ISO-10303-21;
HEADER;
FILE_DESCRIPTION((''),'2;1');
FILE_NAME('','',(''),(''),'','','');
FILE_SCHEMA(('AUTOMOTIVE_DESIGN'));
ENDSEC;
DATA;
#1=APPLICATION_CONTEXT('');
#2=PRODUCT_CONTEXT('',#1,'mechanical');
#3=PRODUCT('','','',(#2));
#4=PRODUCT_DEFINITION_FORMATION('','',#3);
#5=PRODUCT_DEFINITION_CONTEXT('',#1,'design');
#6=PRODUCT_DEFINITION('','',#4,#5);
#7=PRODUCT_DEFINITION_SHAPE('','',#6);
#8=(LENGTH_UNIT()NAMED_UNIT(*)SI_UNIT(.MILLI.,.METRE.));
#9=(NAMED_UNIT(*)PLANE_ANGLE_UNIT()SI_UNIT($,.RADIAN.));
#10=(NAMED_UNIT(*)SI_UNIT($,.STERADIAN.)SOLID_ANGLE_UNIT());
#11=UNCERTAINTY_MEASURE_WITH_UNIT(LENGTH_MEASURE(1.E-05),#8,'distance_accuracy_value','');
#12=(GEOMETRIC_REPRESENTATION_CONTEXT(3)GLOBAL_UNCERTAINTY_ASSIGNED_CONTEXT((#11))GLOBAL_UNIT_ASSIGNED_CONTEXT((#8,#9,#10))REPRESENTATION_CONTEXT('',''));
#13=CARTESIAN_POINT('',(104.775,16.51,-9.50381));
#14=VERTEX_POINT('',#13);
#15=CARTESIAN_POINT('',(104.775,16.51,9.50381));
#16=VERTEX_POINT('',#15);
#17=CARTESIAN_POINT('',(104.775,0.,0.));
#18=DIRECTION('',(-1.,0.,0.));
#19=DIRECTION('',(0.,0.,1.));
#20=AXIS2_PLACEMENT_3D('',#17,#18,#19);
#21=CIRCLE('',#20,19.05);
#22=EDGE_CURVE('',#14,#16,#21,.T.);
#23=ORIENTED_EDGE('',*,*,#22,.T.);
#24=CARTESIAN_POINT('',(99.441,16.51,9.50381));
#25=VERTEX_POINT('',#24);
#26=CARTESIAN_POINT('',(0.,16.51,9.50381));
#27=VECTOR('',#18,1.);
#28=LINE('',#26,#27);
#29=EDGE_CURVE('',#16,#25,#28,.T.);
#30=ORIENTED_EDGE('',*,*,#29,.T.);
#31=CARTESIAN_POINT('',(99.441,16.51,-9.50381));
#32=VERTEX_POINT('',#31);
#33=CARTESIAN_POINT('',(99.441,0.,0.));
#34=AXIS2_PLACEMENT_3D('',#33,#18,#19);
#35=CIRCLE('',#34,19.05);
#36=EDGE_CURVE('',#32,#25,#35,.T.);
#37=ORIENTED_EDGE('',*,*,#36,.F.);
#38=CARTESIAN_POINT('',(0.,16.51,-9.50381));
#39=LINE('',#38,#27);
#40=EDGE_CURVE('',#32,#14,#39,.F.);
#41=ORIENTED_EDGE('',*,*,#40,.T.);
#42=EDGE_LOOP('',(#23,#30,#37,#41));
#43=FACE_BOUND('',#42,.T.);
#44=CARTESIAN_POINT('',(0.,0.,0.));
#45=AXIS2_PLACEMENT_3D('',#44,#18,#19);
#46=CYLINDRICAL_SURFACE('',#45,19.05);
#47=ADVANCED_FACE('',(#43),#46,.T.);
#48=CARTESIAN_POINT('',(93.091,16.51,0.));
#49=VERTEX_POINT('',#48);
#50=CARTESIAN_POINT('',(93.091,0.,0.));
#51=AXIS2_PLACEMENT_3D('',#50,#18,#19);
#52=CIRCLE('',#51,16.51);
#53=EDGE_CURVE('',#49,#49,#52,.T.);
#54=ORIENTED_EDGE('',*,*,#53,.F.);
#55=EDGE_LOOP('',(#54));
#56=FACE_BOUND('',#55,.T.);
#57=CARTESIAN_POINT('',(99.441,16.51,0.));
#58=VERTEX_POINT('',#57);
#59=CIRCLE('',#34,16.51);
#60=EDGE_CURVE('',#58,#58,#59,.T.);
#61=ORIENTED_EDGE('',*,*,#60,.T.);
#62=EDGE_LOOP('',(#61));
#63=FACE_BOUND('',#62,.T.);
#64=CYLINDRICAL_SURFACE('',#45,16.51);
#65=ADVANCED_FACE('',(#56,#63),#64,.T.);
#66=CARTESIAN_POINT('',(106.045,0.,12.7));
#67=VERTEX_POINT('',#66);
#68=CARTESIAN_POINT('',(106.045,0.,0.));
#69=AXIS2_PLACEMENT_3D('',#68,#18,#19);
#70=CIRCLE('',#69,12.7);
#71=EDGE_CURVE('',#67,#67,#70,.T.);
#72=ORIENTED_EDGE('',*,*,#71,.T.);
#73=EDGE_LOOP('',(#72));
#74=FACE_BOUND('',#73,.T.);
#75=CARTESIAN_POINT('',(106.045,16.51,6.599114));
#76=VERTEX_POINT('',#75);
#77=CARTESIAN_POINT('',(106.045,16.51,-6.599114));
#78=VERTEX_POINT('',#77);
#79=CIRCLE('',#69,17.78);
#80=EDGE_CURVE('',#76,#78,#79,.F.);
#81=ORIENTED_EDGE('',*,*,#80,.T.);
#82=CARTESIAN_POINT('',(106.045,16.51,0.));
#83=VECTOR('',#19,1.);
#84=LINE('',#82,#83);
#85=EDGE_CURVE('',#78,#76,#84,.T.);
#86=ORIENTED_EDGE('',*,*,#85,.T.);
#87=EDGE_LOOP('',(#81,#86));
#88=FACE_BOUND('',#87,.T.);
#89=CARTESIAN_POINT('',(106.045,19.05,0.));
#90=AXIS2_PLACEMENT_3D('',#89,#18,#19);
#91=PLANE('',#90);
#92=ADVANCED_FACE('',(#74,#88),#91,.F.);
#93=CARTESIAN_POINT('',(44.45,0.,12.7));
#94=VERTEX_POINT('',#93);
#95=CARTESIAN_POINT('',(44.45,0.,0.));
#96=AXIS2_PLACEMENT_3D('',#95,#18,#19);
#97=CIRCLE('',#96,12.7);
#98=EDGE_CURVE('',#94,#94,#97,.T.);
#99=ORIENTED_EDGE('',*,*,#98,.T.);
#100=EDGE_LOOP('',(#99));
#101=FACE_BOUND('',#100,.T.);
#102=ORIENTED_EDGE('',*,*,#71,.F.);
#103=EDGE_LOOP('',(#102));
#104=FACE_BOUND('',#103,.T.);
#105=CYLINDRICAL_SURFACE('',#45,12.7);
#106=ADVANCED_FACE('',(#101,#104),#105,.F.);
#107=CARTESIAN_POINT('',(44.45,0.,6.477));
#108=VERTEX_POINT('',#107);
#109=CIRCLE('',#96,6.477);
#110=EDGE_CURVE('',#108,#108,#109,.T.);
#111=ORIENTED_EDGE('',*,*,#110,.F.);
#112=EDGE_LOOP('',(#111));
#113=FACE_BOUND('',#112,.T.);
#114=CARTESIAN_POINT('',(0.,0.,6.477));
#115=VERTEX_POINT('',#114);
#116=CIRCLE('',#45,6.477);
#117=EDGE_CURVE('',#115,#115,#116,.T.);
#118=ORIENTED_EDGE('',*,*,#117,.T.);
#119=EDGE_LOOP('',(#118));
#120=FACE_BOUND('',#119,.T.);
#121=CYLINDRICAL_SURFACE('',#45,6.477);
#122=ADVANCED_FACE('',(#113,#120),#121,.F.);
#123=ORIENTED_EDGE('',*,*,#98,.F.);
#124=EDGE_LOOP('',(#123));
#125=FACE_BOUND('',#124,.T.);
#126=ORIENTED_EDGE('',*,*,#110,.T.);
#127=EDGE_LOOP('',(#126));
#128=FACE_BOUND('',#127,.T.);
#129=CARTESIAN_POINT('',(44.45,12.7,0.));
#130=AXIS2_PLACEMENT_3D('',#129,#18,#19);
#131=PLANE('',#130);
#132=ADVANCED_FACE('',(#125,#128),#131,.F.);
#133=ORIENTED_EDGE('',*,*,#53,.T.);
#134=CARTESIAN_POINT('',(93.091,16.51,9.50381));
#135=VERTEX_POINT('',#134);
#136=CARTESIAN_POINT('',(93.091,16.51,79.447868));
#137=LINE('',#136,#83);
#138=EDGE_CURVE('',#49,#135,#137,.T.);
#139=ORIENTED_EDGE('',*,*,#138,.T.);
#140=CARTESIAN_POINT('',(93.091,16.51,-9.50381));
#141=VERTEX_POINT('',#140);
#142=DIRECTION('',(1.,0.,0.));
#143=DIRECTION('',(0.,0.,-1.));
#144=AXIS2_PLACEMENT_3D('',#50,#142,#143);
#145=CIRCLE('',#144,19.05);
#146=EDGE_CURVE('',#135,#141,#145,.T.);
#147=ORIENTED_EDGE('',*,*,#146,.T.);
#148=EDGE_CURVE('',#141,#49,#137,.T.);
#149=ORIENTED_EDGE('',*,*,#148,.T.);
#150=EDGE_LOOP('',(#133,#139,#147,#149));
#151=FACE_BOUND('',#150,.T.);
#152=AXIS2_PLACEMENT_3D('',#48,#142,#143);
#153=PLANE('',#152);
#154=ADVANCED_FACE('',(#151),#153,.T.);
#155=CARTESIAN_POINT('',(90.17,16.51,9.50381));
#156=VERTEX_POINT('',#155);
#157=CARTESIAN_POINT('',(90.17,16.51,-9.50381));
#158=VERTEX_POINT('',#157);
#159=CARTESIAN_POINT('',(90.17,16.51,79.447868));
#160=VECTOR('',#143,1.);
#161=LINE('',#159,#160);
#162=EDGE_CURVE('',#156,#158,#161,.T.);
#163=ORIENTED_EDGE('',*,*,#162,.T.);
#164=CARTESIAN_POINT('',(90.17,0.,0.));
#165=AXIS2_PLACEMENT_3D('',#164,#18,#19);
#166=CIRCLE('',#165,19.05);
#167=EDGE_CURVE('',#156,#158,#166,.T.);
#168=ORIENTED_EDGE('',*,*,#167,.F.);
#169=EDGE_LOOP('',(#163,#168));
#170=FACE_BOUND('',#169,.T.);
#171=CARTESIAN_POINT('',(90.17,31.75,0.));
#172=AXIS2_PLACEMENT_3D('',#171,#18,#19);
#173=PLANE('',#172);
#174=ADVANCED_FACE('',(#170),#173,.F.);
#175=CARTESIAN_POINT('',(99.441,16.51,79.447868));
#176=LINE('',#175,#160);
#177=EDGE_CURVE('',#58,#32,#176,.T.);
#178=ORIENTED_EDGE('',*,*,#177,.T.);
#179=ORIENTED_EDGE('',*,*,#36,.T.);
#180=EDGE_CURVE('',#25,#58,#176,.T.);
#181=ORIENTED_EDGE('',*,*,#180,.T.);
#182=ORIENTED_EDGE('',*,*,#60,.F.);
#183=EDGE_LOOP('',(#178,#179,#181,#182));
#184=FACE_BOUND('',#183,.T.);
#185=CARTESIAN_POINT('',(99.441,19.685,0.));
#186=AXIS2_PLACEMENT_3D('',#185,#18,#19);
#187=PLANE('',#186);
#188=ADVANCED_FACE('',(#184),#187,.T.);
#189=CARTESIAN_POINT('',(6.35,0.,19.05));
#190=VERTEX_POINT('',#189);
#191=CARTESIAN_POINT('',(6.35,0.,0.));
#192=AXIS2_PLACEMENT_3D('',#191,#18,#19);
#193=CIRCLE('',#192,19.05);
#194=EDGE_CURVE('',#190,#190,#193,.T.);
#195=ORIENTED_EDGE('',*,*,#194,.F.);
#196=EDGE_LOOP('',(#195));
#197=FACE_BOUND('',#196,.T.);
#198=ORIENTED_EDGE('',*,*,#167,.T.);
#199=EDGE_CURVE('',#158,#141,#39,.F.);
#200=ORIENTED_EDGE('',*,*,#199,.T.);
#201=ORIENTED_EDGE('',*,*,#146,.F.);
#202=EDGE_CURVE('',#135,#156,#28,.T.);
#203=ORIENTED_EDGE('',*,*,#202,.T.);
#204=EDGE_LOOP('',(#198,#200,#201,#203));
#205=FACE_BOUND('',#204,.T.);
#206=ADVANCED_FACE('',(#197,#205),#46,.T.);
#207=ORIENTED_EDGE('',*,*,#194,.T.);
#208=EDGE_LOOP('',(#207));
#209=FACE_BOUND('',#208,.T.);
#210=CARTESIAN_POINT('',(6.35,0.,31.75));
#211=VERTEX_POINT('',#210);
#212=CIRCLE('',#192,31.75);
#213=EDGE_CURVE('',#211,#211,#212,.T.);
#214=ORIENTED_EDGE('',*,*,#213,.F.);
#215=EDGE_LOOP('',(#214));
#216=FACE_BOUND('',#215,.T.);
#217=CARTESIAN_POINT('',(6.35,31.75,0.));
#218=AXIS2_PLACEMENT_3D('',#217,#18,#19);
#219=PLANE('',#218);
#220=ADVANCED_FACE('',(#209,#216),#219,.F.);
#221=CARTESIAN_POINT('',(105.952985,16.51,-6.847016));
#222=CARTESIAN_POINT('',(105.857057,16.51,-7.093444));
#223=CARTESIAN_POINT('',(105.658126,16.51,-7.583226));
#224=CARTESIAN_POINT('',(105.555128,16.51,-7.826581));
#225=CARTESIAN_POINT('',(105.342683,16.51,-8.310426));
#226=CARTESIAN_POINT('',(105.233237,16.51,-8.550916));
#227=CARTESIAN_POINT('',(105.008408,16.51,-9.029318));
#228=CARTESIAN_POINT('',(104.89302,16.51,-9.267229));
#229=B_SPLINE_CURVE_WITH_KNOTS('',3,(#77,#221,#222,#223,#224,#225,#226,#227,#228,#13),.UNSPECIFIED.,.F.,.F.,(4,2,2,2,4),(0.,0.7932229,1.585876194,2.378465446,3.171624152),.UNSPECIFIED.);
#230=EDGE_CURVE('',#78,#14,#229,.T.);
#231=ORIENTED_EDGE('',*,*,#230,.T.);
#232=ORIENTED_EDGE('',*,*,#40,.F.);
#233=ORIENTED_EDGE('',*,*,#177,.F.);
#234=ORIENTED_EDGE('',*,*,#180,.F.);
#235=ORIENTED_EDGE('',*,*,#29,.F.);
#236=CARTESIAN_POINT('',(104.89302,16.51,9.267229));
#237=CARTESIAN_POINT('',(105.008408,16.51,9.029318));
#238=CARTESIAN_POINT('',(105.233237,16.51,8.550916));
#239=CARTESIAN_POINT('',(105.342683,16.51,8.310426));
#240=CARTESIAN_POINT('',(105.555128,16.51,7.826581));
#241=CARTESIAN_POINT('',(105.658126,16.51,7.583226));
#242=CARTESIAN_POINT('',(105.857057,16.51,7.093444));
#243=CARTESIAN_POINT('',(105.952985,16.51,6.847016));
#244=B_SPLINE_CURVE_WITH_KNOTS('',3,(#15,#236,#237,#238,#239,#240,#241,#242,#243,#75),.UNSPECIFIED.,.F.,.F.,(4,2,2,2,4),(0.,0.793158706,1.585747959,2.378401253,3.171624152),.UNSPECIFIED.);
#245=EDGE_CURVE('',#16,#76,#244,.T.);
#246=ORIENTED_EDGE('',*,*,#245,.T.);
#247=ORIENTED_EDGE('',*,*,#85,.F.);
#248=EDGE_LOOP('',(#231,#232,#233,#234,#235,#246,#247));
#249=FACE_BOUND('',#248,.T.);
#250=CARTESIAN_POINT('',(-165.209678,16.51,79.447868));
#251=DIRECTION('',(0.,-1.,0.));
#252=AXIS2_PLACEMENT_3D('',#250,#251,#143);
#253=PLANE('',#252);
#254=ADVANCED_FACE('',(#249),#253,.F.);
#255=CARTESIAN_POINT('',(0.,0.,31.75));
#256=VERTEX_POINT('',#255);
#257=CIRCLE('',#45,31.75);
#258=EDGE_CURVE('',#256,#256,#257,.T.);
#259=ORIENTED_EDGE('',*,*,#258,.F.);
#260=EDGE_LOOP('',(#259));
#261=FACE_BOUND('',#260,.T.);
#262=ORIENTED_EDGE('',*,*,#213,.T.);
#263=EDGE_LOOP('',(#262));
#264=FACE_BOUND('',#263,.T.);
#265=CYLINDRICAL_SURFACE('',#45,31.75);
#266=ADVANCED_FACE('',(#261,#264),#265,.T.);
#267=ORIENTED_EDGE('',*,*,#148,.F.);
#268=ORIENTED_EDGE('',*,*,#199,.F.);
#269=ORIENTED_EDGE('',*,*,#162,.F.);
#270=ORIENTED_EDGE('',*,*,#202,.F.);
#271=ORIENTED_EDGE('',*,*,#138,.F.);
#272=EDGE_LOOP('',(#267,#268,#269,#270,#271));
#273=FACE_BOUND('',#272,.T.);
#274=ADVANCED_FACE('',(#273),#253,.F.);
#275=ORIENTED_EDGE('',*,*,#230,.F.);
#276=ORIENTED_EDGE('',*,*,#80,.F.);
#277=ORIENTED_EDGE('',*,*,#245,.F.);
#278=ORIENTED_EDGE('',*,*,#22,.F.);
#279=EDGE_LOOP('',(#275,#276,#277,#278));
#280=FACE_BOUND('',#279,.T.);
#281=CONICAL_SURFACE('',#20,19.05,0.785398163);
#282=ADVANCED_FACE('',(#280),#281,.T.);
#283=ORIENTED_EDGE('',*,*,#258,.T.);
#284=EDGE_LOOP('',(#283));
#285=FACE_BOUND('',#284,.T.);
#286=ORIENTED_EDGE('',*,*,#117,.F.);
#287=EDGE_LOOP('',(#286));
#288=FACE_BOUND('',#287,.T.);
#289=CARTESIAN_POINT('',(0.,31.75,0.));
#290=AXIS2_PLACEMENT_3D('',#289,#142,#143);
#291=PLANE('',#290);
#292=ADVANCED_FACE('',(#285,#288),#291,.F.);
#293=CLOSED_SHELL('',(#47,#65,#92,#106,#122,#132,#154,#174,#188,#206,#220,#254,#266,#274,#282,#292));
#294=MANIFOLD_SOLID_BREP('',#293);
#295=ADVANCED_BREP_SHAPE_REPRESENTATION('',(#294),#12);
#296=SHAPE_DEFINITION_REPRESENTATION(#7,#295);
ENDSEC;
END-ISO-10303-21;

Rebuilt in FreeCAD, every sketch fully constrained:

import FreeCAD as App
import Part
import Sketcher
from FreeCAD import Vector
Q = App.Units.Quantity


def edges_at(feature, points):
    """Names of the edges that pass closest to the given points."""
    edges = feature.Shape.Edges
    near = lambda p: min(range(len(edges)), key=lambda i: edges[i].distToShape(Part.Vertex(*p))[0])
    return sorted({f"Edge{near(p) + 1}" for p in points})


def add_polygon(sketch, points):
    """Adds a closed chain of lines whose ends are joined by coincident constraints."""
    first, n = sketch.GeometryCount, len(points)
    for a, b in zip(points, points[1:] + points[:1]):
        sketch.addGeometry(Part.LineSegment(App.Vector(*a, 0), App.Vector(*b, 0)), False)
    for i in range(n):
        sketch.addConstraint(Sketcher.Constraint("Coincident", first + i, 2, first + (i + 1) % n, 1))

doc = App.newDocument("Part")
body = doc.addObject("PartDesign::Body", "Body")

# Sketch on XY plane
sketch1 = doc.addObject("Sketcher::SketchObject", "Sketch")
body.addObject(sketch1)
sketch1.AttachmentSupport = (doc.XY_Plane, [""])
sketch1.MapMode = "FlatFace"
add_polygon(sketch1, [(0, 32), (0, 6), (44, 6), (44, 13), (106, 13), (106, 19), (6, 19), (6, 32)])  # lines 0-7
sketch1.addConstraint(Sketcher.Constraint("Vertical", 0))
sketch1.addConstraint(Sketcher.Constraint("Horizontal", 1))
sketch1.addConstraint(Sketcher.Constraint("Vertical", 2))
sketch1.addConstraint(Sketcher.Constraint("Horizontal", 3))
sketch1.addConstraint(Sketcher.Constraint("Vertical", 4))
sketch1.addConstraint(Sketcher.Constraint("Horizontal", 5))
sketch1.addConstraint(Sketcher.Constraint("Vertical", 6))
sketch1.addConstraint(Sketcher.Constraint("Horizontal", 7))
sketch1.addConstraint(Sketcher.Constraint("PointOnObject", 0, 2, -2))
sketch1.addConstraint(Sketcher.Constraint("Equal", 7, 4))
sketch1.addConstraint(Sketcher.Constraint("DistanceY", 6, 1, 6, 2, Q("0.5 in")))
sketch1.addConstraint(Sketcher.Constraint("DistanceX", 1, 1, 1, 2, Q("1.75 in")))
sketch1.addConstraint(Sketcher.Constraint("DistanceX", 7, 2, 7, 1, Q("0.25 in")))
sketch1.addConstraint(Sketcher.Constraint("DistanceY", -1, 1, 2, 2, Q("0.5 in")))
sketch1.addConstraint(Sketcher.Constraint("DistanceX", 3, 1, 3, 2, Q("2.425 in")))
sketch1.addConstraint(Sketcher.Constraint("DistanceY", 0, 2, 0, 1, Q("0.995 in")))
revolution = doc.addObject("PartDesign::Revolution", "Revolution")
body.addObject(revolution)
revolution.Profile = sketch1
revolution.ReferenceAxis = (sketch1, ["H_Axis"])
revolution.Angle = 360

# Sketch on YZ plane
sketch2 = doc.addObject("Sketcher::SketchObject", "Sketch001")
body.addObject(sketch2)
sketch2.AttachmentSupport = (doc.YZ_Plane, [""])
sketch2.MapMode = "FlatFace"
sketch2.AttachmentOffset = App.Placement(Vector(0, 0, 4.175 * 25.4), App.Rotation())
add_polygon(sketch2, [(72, 79), (17, 79), (17, -83), (72, -83)])  # lines 0-3
sketch2.addConstraint(Sketcher.Constraint("Horizontal", 0))
sketch2.addConstraint(Sketcher.Constraint("Vertical", 1))
sketch2.addConstraint(Sketcher.Constraint("Horizontal", 2))
sketch2.addConstraint(Sketcher.Constraint("Vertical", 3))
sketch2.addConstraint(Sketcher.Constraint("DistanceX", -1, 1, 0, 2, Q("0.65 in")))
sketch2.addConstraint(Sketcher.Constraint("DistanceX", 0, 2, 0, 1, 55.549244))
sketch2.addConstraint(Sketcher.Constraint("DistanceY", 1, 2, 1, 1, 162.317604))
sketch2.addConstraint(Sketcher.Constraint("DistanceY", -1, 1, 0, 2, 79.447868))
pocket1 = doc.addObject("PartDesign::Pocket", "Pocket")
body.addObject(pocket1)
pocket1.Profile = sketch2
pocket1.Length = Q("0.625 in")

# Sketch on XY plane
sketch3 = doc.addObject("Sketcher::SketchObject", "Sketch002")
body.addObject(sketch3)
sketch3.AttachmentSupport = (doc.XY_Plane, [""])
sketch3.MapMode = "FlatFace"
add_polygon(sketch3, [(93.1, 19.7), (93.1, 16.5), (99.4, 16.5), (99.4, 19.7)])  # lines 0-3
sketch3.addConstraint(Sketcher.Constraint("Vertical", 0))
sketch3.addConstraint(Sketcher.Constraint("Horizontal", 1))
sketch3.addConstraint(Sketcher.Constraint("Vertical", 2))
sketch3.addConstraint(Sketcher.Constraint("Horizontal", 3))
sketch3.addConstraint(Sketcher.Constraint("DistanceX", 1, 1, 1, 2, Q("0.25 in")))
sketch3.addConstraint(Sketcher.Constraint("DistanceY", 0, 2, 0, 1, Q("0.125 in")))
sketch3.addConstraint(Sketcher.Constraint("DistanceY", -1, 1, 0, 2, Q("0.65 in")))
sketch3.addConstraint(Sketcher.Constraint("DistanceX", -1, 1, 0, 2, Q("3.665 in")))
groove = doc.addObject("PartDesign::Groove", "Groove")
body.addObject(groove)
groove.Profile = sketch3
groove.ReferenceAxis = (sketch3, ["H_Axis"])
groove.Angle = 360
doc.recompute()

chamfer = doc.addObject("PartDesign::Chamfer", "Chamfer")
body.addObject(chamfer)
chamfer.Base = (groove, edges_at(groove, [(106.045, -19.05, 0)]))
chamfer.Size = Q("0.05 in")

doc.recompute()
